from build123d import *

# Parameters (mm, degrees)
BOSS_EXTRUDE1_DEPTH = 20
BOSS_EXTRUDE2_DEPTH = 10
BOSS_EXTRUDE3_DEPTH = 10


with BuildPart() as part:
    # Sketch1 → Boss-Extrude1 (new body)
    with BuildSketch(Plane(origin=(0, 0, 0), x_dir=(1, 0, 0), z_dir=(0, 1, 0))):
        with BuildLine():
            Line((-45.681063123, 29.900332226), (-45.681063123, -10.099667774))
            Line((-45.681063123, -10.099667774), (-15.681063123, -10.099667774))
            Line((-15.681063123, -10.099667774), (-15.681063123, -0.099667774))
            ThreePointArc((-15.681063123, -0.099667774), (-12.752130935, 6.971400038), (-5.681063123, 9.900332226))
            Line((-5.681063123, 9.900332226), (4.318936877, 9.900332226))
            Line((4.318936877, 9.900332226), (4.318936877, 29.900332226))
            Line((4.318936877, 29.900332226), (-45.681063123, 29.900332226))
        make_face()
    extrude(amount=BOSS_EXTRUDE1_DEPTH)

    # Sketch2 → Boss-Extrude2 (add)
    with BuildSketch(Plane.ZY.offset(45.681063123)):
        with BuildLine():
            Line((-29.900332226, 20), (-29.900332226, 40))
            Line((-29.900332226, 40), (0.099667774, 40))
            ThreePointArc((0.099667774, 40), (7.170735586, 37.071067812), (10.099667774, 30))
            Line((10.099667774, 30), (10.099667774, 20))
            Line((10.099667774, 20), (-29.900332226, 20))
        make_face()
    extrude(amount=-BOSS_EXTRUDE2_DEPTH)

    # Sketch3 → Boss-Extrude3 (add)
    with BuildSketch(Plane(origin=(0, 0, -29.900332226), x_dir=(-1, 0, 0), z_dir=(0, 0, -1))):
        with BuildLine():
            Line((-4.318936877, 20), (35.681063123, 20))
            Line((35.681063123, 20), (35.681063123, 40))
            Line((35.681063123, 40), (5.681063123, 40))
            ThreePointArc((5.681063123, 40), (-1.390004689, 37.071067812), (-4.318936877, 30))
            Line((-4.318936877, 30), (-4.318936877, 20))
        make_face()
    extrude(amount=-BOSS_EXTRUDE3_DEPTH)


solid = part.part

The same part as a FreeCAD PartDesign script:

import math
import FreeCAD as App
import Part
import Sketcher

doc = App.newDocument("Part")
body = doc.addObject("PartDesign::Body", "Body")

# Sketch on XZ plane
sketch1 = body.newObject("Sketcher::SketchObject", "Sketch")
sketch1.AttachmentSupport = (doc.getObject("XZ_Plane"), [""])
sketch1.MapMode = "FlatFace"
sketch1.addGeometry([
    Part.LineSegment(App.Vector(-46, -30, 0), App.Vector(-46, 10, 0)),  # 0
    Part.LineSegment(App.Vector(-46, 10, 0), App.Vector(-16, 10, 0)),  # 1
    Part.LineSegment(App.Vector(-16, 10, 0), App.Vector(-16, 0, 0)),  # 2
    Part.ArcOfCircle(Part.Circle(App.Vector(-6, 0, 0), App.Vector(0, 0, 1), 10), math.radians(180), math.radians(270)),  # 3
    Part.LineSegment(App.Vector(-6, -10, 0), App.Vector(4, -10, 0)),  # 4
    Part.LineSegment(App.Vector(4, -10, 0), App.Vector(4, -30, 0)),  # 5
    Part.LineSegment(App.Vector(4, -30, 0), App.Vector(-46, -30, 0)),  # 6
], False)
sketch1.addConstraint([
    Sketcher.Constraint("Coincident", 0, 2, 1, 1),
    Sketcher.Constraint("Coincident", 1, 2, 2, 1),
    Sketcher.Constraint("Tangent", 2, 2, 3, 1),
    Sketcher.Constraint("Tangent", 3, 2, 4, 1),
    Sketcher.Constraint("Coincident", 4, 2, 5, 1),
    Sketcher.Constraint("Coincident", 5, 2, 6, 1),
    Sketcher.Constraint("Coincident", 6, 2, 0, 1),
    Sketcher.Constraint("Vertical", 0),
    Sketcher.Constraint("Horizontal", 1),
    Sketcher.Constraint("Vertical", 2),
    Sketcher.Constraint("Horizontal", 4),
    Sketcher.Constraint("Vertical", 5),
    Sketcher.Constraint("Horizontal", 6),
    Sketcher.Constraint("Equal", 4, 2),
    Sketcher.Constraint("Radius", 3, 10.0),
    Sketcher.Constraint("DistanceX", 1, 1, 1, 2, 30.0),
    Sketcher.Constraint("DistanceX", 4, 1, 4, 2, 10.0),
    Sketcher.Constraint("DistanceY", 0, 1, 0, 2, 40.0),
    Sketcher.Constraint("DistanceX", 3, 3, -1, 1, 5.681063),
    Sketcher.Constraint("DistanceY", -1, 1, 3, 3, 0.099668),
])
pad1 = body.newObject("PartDesign::Pad", "Pad")
pad1.Profile = sketch1
pad1.Length = 20
pad1.Reversed = True

# Sketch on YZ plane
sketch2 = body.newObject("Sketcher::SketchObject", "Sketch001")
sketch2.AttachmentSupport = (doc.getObject("YZ_Plane"), [""])
sketch2.MapMode = "FlatFace"
sketch2.AttachmentOffset = App.Placement(App.Vector(0, 0, -45.681063), App.Rotation())
sketch2.addGeometry([
    Part.LineSegment(App.Vector(40, -30, 0), App.Vector(20, -30, 0)),  # 0
    Part.LineSegment(App.Vector(20, -30, 0), App.Vector(20, 10, 0)),  # 1
    Part.LineSegment(App.Vector(20, 10, 0), App.Vector(30, 10, 0)),  # 2
    Part.ArcOfCircle(Part.Circle(App.Vector(30, 0, 0), App.Vector(0, 0, 1), 10), math.radians(0), math.radians(90)),  # 3
    Part.LineSegment(App.Vector(40, 0, 0), App.Vector(40, -30, 0)),  # 4
], False)
sketch2.addConstraint([
    Sketcher.Constraint("Coincident", 0, 2, 1, 1),
    Sketcher.Constraint("Coincident", 1, 2, 2, 1),
    Sketcher.Constraint("Tangent", 2, 2, 3, 2),
    Sketcher.Constraint("Tangent", 3, 1, 4, 1),
    Sketcher.Constraint("Coincident", 4, 2, 0, 1),
    Sketcher.Constraint("Horizontal", 0),
    Sketcher.Constraint("Vertical", 1),
    Sketcher.Constraint("Horizontal", 2),
    Sketcher.Constraint("Vertical", 4),
    Sketcher.Constraint("Radius", 3, 10.0),
    Sketcher.Constraint("DistanceX", 0, 2, 0, 1, 20.0),
    Sketcher.Constraint("DistanceY", 1, 1, 1, 2, 40.0),
    Sketcher.Constraint("DistanceX", -1, 1, 3, 3, 30.0),
    Sketcher.Constraint("DistanceY", -1, 1, 3, 3, 0.099668),
])
pad2 = body.newObject("PartDesign::Pad", "Pad001")
pad2.Profile = sketch2
pad2.Length = 10

# Sketch on XY plane
sketch3 = body.newObject("Sketcher::SketchObject", "Sketch002")
sketch3.AttachmentSupport = (doc.getObject("XY_Plane"), [""])
sketch3.MapMode = "FlatFace"
sketch3.AttachmentOffset = App.Placement(App.Vector(0, 0, -29.900332), App.Rotation())
sketch3.addGeometry([
    Part.LineSegment(App.Vector(4, 20, 0), App.Vector(-36, 20, 0)),  # 0
    Part.LineSegment(App.Vector(-36, 20, 0), App.Vector(-36, 40, 0)),  # 1
    Part.LineSegment(App.Vector(-36, 40, 0), App.Vector(-6, 40, 0)),  # 2
    Part.ArcOfCircle(Part.Circle(App.Vector(-6, 30, 0), App.Vector(0, 0, 1), 10), math.radians(0), math.radians(90)),  # 3
    Part.LineSegment(App.Vector(4, 30, 0), App.Vector(4, 20, 0)),  # 4
], False)
sketch3.addConstraint([
    Sketcher.Constraint("Coincident", 0, 2, 1, 1),
    Sketcher.Constraint("Coincident", 1, 2, 2, 1),
    Sketcher.Constraint("Tangent", 2, 2, 3, 2),
    Sketcher.Constraint("Tangent", 3, 1, 4, 1),
    Sketcher.Constraint("Coincident", 4, 2, 0, 1),
    Sketcher.Constraint("Horizontal", 0),
    Sketcher.Constraint("Vertical", 1),
    Sketcher.Constraint("Horizontal", 2),
    Sketcher.Constraint("Vertical", 4),
    Sketcher.Constraint("Radius", 3, 10.0),
    Sketcher.Constraint("DistanceX", 0, 2, 0, 1, 40.0),
    Sketcher.Constraint("DistanceY", 1, 1, 1, 2, 20.0),
    Sketcher.Constraint("DistanceY", -1, 1, 3, 3, 30.0),
    Sketcher.Constraint("DistanceX", 3, 3, -1, 1, 5.681063),
])
pad3 = body.newObject("PartDesign::Pad", "Pad002")
pad3.Profile = sketch3
pad3.Length = 10

doc.recompute()
